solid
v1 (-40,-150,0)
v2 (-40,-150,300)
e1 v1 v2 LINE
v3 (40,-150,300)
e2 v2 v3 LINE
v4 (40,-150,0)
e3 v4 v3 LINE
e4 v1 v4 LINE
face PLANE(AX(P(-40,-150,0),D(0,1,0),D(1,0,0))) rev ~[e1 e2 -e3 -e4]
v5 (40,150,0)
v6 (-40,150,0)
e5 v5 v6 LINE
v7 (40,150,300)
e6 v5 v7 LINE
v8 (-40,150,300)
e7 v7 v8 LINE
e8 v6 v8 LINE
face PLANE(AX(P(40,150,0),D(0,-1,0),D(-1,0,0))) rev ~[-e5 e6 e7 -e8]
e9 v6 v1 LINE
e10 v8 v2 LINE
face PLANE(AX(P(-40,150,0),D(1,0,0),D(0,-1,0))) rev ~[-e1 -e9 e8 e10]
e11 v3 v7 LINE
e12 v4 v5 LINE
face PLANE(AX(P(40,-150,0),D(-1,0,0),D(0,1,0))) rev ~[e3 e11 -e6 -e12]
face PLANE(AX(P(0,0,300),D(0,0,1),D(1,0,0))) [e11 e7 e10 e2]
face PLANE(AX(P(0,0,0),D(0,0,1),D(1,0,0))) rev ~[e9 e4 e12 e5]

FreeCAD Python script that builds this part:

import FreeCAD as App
import Part
import Sketcher

V = App.Vector


def add_polygon(sketch, points):
    """Adds a closed chain of lines whose ends are joined by coincident constraints."""
    first, n = sketch.GeometryCount, len(points)
    for a, b in zip(points, points[1:] + points[:1]):
        sketch.addGeometry(Part.LineSegment(App.Vector(*a, 0), App.Vector(*b, 0)), False)
    for i in range(n):
        sketch.addConstraint(Sketcher.Constraint("Coincident", first + i, 2, first + (i + 1) % n, 1))

doc = App.newDocument("Part")
body = doc.addObject("PartDesign::Body", "Body")

sketch1 = body.newObject("Sketcher::SketchObject", "Sketch")
sketch1.AttachmentSupport = (doc.getObject("XY_Plane"), [""])
sketch1.MapMode = "FlatFace"
add_polygon(sketch1, [(-40, 150), (-40, -150), (40, -150), (40, 150)])
sketch1.addConstraint([
    Sketcher.Constraint("Vertical", 0),
    Sketcher.Constraint("Horizontal", 1),
    Sketcher.Constraint("Vertical", 2),
    Sketcher.Constraint("Horizontal", 3),
    Sketcher.Constraint("Symmetric", 0, 2, 2, 2, -1, 1),
    Sketcher.Constraint("DistanceX", 1, 1, 1, 2, 80.0),
    Sketcher.Constraint("DistanceY", 0, 2, 0, 1, 300.0),
])
pad1 = body.newObject("PartDesign::Pad", "Pad")
pad1.Profile = sketch1
pad1.Length = 300

doc.recompute()
